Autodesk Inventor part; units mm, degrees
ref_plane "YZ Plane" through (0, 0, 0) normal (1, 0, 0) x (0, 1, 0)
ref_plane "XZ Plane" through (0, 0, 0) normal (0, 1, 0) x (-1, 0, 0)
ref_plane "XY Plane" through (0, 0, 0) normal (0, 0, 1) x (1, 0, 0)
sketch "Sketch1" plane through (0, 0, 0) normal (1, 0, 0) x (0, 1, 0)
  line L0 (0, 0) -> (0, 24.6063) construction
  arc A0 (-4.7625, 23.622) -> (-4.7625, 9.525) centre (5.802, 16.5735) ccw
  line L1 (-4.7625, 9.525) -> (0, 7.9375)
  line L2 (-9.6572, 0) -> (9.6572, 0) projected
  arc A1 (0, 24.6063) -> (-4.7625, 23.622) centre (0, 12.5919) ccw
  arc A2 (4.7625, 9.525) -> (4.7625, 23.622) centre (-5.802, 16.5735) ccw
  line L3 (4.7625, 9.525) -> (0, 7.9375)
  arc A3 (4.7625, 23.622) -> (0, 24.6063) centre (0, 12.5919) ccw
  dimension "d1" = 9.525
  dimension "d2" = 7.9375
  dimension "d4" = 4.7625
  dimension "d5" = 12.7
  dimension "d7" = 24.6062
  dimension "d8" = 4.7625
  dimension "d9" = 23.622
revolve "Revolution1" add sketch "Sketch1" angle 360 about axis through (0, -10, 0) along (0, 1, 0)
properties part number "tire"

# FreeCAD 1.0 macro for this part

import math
import FreeCAD as App
import Part
import Sketcher
Q = App.Units.Quantity

doc = App.newDocument("Part")
params = doc.addObject("Spreadsheet::Sheet", "Params")
for row, (alias, value) in enumerate([
    ("sketch1_radius", "0.5 in"),
    ("revolution_angle", "360 deg"),
], start=1):
    params.set(f"A{row}", alias)
    params.set(f"B{row}", "=" + value)
    params.setAlias(f"B{row}", alias)

body = doc.addObject("PartDesign::Body", "Body")

# Sketch on YZ plane
sketch1 = body.newObject("Sketcher::SketchObject", "Sketch")
sketch1.AttachmentSupport = (doc.getObject("YZ_Plane"), [""])
sketch1.MapMode = "FlatFace"
sketch1.addGeometry(Part.ArcOfCircle(Part.Circle(App.Vector(-0.000133, 12.593202, 0), App.Vector(0, 0, 1), 12.013098), math.radians(89.999365), math.radians(113.355264)), False)
sketch1.addGeometry(Part.ArcOfCircle(Part.Circle(App.Vector(5.802, 16.5735, 0), App.Vector(0, 0, 1), 12.7), math.radians(146.289287), math.radians(213.710713)), False)
sketch1.addGeometry(Part.LineSegment(App.Vector(-4.7625, 9.525, 0), App.Vector(0, 7.9375, 0)), False)
sketch1.addGeometry(Part.LineSegment(App.Vector(0, 7.9375, 0), App.Vector(4.7625, 9.525, 0)), False)
sketch1.addGeometry(Part.ArcOfCircle(Part.Circle(App.Vector(-5.802, 16.5735, 0), App.Vector(0, 0, 1), 12.7), math.radians(-33.710713), math.radians(33.710713)), False)
sketch1.addGeometry(Part.ArcOfCircle(Part.Circle(App.Vector(-0.000394, 12.590652, 0), App.Vector(0, 0, 1), 12.015648), math.radians(66.647249), math.radians(89.998121)), False)
sketch1.addConstraint(Sketcher.Constraint("Coincident", 0, 2, 1, 1))
sketch1.addConstraint(Sketcher.Constraint("Coincident", 1, 2, 2, 1))
sketch1.addConstraint(Sketcher.Constraint("Coincident", 2, 2, 3, 1))
sketch1.addConstraint(Sketcher.Constraint("Coincident", 3, 2, 4, 1))
sketch1.addConstraint(Sketcher.Constraint("Coincident", 4, 2, 5, 1))
sketch1.addConstraint(Sketcher.Constraint("Tangent", 5, 2, 0, 1))
sketch1.addConstraint(Sketcher.Constraint("Equal", 1, 4))
sketch1.addConstraint(Sketcher.Constraint("Symmetric", 1, 3, 4, 3, -2))
sketch1.addConstraint(Sketcher.Constraint("PointOnObject", 0, 3, -2))
sketch1.addConstraint(Sketcher.Constraint("PointOnObject", 2, 2, -2))
sketch1.addConstraint(Sketcher.Constraint("PointOnObject", 5, 2, -2))
sketch1.addConstraint(Sketcher.Constraint("Horizontal", 1, 2, 3, 2))
sketch1.addConstraint(Sketcher.Constraint("Horizontal", 0, 2, 4, 2))
sketch1.addConstraint(Sketcher.Constraint("Vertical", 0, 2, 1, 2))
sketch1.addConstraint(Sketcher.Constraint("Radius", 1, Q("0.5 in")))
sketch1.addConstraint(Sketcher.Constraint("DistanceY", -1, 1, 0, 2, Q("0.93 in")))
sketch1.addConstraint(Sketcher.Constraint("DistanceX", 0, 2, -1, 1, Q("0.1875 in")))
sketch1.addConstraint(Sketcher.Constraint("DistanceY", -1, 1, 1, 2, Q("0.375 in")))
sketch1.addConstraint(Sketcher.Constraint("DistanceY", -1, 1, 2, 2, Q("0.3125 in")))
sketch1.addConstraint(Sketcher.Constraint("DistanceY", -1, 1, 5, 2, Q("0.968752 in")))
sketch1.setExpression("Constraints[14]", "Params.sketch1_radius")
revolution = body.newObject("PartDesign::Revolution", "Revolution")
revolution.Profile = sketch1
revolution.ReferenceAxis = (sketch1, ["H_Axis"])
revolution.setExpression("Angle", "Params.revolution_angle")

doc.recompute()
